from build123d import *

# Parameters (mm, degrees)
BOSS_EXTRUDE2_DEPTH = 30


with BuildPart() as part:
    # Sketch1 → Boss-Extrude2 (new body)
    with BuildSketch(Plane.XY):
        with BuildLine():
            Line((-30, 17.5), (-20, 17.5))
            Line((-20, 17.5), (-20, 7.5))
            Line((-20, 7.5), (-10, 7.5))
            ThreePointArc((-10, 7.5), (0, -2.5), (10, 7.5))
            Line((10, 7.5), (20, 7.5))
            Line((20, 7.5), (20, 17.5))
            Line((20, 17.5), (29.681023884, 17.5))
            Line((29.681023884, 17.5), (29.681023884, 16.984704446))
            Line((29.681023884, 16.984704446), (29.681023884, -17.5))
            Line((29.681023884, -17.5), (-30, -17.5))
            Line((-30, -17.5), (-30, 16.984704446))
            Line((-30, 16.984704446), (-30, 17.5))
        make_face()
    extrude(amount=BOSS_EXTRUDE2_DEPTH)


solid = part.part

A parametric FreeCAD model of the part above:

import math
import FreeCAD as App
import Part
import Sketcher

V = App.Vector
Q = App.Units.Quantity

doc = App.newDocument("Part")
body = doc.addObject("PartDesign::Body", "Body")

sketch1 = body.newObject("Sketcher::SketchObject", "Sketch")
sketch1.AttachmentSupport = (doc.getObject("XY_Plane"), [""])
sketch1.MapMode = "FlatFace"
sketch1.addGeometry([
    Part.LineSegment(V(-20, 18, 0), V(-30, 18, 0)),
    Part.LineSegment(V(-30, 18, 0), V(-30, -18, 0)),
    Part.LineSegment(V(-30, -18, 0), V(30, -18, 0)),
    Part.LineSegment(V(30, -18, 0), V(30, 18, 0)),
    Part.LineSegment(V(30, 18, 0), V(20, 18, 0)),
    Part.LineSegment(V(20, 18, 0), V(20, 8, 0)),
    Part.LineSegment(V(20, 8, 0), V(10, 8, 0)),
    Part.ArcOfCircle(Part.Circle(V(0, 8, 0), V(0, 0, 1), 10), math.radians(180), math.radians(360)),
    Part.LineSegment(V(-10, 8, 0), V(-20, 8, 0)),
    Part.LineSegment(V(-20, 8, 0), V(-20, 18, 0)),
], False)
sketch1.addConstraint([
    Sketcher.Constraint("Coincident", 0, 2, 1, 1),
    Sketcher.Constraint("Coincident", 1, 2, 2, 1),
    Sketcher.Constraint("Coincident", 2, 2, 3, 1),
    Sketcher.Constraint("Coincident", 3, 2, 4, 1),
    Sketcher.Constraint("Coincident", 4, 2, 5, 1),
    Sketcher.Constraint("Coincident", 5, 2, 6, 1),
    Sketcher.Constraint("Coincident", 6, 2, 7, 2),
    Sketcher.Constraint("Coincident", 7, 1, 8, 1),
    Sketcher.Constraint("Coincident", 8, 2, 9, 1),
    Sketcher.Constraint("Coincident", 9, 2, 0, 1),
    Sketcher.Constraint("Horizontal", 0),
    Sketcher.Constraint("Vertical", 1),
    Sketcher.Constraint("Horizontal", 2),
    Sketcher.Constraint("Vertical", 3),
    Sketcher.Constraint("Horizontal", 4),
    Sketcher.Constraint("Vertical", 5),
    Sketcher.Constraint("Horizontal", 6),
    Sketcher.Constraint("Horizontal", 8),
    Sketcher.Constraint("Vertical", 9),
    Sketcher.Constraint("Symmetric", 6, 2, 7, 1, -2),
    Sketcher.Constraint("Symmetric", 4, 2, 9, 2, -2),
    Sketcher.Constraint("Horizontal", 7, 3, 5, 2),
    Sketcher.Constraint("Equal", 0, 6),
    Sketcher.Constraint("Equal", 8, 5),
    Sketcher.Constraint("Radius", 7, Q("10 mm")),
    Sketcher.Constraint("DistanceX", 0, 2, 0, 1, Q("10 mm")),
    Sketcher.Constraint("DistanceY", 1, 2, 1, 1, Q("35 mm")),
    Sketcher.Constraint("DistanceY", -1, 1, 7, 3, Q("7.5 mm")),
    Sketcher.Constraint("DistanceX", 2, 1, 2, 2, Q("59.681024 mm")),
])
pad1 = body.newObject("PartDesign::Pad", "Pad")
pad1.Profile = sketch1
pad1.Length = 30

doc.recompute()
